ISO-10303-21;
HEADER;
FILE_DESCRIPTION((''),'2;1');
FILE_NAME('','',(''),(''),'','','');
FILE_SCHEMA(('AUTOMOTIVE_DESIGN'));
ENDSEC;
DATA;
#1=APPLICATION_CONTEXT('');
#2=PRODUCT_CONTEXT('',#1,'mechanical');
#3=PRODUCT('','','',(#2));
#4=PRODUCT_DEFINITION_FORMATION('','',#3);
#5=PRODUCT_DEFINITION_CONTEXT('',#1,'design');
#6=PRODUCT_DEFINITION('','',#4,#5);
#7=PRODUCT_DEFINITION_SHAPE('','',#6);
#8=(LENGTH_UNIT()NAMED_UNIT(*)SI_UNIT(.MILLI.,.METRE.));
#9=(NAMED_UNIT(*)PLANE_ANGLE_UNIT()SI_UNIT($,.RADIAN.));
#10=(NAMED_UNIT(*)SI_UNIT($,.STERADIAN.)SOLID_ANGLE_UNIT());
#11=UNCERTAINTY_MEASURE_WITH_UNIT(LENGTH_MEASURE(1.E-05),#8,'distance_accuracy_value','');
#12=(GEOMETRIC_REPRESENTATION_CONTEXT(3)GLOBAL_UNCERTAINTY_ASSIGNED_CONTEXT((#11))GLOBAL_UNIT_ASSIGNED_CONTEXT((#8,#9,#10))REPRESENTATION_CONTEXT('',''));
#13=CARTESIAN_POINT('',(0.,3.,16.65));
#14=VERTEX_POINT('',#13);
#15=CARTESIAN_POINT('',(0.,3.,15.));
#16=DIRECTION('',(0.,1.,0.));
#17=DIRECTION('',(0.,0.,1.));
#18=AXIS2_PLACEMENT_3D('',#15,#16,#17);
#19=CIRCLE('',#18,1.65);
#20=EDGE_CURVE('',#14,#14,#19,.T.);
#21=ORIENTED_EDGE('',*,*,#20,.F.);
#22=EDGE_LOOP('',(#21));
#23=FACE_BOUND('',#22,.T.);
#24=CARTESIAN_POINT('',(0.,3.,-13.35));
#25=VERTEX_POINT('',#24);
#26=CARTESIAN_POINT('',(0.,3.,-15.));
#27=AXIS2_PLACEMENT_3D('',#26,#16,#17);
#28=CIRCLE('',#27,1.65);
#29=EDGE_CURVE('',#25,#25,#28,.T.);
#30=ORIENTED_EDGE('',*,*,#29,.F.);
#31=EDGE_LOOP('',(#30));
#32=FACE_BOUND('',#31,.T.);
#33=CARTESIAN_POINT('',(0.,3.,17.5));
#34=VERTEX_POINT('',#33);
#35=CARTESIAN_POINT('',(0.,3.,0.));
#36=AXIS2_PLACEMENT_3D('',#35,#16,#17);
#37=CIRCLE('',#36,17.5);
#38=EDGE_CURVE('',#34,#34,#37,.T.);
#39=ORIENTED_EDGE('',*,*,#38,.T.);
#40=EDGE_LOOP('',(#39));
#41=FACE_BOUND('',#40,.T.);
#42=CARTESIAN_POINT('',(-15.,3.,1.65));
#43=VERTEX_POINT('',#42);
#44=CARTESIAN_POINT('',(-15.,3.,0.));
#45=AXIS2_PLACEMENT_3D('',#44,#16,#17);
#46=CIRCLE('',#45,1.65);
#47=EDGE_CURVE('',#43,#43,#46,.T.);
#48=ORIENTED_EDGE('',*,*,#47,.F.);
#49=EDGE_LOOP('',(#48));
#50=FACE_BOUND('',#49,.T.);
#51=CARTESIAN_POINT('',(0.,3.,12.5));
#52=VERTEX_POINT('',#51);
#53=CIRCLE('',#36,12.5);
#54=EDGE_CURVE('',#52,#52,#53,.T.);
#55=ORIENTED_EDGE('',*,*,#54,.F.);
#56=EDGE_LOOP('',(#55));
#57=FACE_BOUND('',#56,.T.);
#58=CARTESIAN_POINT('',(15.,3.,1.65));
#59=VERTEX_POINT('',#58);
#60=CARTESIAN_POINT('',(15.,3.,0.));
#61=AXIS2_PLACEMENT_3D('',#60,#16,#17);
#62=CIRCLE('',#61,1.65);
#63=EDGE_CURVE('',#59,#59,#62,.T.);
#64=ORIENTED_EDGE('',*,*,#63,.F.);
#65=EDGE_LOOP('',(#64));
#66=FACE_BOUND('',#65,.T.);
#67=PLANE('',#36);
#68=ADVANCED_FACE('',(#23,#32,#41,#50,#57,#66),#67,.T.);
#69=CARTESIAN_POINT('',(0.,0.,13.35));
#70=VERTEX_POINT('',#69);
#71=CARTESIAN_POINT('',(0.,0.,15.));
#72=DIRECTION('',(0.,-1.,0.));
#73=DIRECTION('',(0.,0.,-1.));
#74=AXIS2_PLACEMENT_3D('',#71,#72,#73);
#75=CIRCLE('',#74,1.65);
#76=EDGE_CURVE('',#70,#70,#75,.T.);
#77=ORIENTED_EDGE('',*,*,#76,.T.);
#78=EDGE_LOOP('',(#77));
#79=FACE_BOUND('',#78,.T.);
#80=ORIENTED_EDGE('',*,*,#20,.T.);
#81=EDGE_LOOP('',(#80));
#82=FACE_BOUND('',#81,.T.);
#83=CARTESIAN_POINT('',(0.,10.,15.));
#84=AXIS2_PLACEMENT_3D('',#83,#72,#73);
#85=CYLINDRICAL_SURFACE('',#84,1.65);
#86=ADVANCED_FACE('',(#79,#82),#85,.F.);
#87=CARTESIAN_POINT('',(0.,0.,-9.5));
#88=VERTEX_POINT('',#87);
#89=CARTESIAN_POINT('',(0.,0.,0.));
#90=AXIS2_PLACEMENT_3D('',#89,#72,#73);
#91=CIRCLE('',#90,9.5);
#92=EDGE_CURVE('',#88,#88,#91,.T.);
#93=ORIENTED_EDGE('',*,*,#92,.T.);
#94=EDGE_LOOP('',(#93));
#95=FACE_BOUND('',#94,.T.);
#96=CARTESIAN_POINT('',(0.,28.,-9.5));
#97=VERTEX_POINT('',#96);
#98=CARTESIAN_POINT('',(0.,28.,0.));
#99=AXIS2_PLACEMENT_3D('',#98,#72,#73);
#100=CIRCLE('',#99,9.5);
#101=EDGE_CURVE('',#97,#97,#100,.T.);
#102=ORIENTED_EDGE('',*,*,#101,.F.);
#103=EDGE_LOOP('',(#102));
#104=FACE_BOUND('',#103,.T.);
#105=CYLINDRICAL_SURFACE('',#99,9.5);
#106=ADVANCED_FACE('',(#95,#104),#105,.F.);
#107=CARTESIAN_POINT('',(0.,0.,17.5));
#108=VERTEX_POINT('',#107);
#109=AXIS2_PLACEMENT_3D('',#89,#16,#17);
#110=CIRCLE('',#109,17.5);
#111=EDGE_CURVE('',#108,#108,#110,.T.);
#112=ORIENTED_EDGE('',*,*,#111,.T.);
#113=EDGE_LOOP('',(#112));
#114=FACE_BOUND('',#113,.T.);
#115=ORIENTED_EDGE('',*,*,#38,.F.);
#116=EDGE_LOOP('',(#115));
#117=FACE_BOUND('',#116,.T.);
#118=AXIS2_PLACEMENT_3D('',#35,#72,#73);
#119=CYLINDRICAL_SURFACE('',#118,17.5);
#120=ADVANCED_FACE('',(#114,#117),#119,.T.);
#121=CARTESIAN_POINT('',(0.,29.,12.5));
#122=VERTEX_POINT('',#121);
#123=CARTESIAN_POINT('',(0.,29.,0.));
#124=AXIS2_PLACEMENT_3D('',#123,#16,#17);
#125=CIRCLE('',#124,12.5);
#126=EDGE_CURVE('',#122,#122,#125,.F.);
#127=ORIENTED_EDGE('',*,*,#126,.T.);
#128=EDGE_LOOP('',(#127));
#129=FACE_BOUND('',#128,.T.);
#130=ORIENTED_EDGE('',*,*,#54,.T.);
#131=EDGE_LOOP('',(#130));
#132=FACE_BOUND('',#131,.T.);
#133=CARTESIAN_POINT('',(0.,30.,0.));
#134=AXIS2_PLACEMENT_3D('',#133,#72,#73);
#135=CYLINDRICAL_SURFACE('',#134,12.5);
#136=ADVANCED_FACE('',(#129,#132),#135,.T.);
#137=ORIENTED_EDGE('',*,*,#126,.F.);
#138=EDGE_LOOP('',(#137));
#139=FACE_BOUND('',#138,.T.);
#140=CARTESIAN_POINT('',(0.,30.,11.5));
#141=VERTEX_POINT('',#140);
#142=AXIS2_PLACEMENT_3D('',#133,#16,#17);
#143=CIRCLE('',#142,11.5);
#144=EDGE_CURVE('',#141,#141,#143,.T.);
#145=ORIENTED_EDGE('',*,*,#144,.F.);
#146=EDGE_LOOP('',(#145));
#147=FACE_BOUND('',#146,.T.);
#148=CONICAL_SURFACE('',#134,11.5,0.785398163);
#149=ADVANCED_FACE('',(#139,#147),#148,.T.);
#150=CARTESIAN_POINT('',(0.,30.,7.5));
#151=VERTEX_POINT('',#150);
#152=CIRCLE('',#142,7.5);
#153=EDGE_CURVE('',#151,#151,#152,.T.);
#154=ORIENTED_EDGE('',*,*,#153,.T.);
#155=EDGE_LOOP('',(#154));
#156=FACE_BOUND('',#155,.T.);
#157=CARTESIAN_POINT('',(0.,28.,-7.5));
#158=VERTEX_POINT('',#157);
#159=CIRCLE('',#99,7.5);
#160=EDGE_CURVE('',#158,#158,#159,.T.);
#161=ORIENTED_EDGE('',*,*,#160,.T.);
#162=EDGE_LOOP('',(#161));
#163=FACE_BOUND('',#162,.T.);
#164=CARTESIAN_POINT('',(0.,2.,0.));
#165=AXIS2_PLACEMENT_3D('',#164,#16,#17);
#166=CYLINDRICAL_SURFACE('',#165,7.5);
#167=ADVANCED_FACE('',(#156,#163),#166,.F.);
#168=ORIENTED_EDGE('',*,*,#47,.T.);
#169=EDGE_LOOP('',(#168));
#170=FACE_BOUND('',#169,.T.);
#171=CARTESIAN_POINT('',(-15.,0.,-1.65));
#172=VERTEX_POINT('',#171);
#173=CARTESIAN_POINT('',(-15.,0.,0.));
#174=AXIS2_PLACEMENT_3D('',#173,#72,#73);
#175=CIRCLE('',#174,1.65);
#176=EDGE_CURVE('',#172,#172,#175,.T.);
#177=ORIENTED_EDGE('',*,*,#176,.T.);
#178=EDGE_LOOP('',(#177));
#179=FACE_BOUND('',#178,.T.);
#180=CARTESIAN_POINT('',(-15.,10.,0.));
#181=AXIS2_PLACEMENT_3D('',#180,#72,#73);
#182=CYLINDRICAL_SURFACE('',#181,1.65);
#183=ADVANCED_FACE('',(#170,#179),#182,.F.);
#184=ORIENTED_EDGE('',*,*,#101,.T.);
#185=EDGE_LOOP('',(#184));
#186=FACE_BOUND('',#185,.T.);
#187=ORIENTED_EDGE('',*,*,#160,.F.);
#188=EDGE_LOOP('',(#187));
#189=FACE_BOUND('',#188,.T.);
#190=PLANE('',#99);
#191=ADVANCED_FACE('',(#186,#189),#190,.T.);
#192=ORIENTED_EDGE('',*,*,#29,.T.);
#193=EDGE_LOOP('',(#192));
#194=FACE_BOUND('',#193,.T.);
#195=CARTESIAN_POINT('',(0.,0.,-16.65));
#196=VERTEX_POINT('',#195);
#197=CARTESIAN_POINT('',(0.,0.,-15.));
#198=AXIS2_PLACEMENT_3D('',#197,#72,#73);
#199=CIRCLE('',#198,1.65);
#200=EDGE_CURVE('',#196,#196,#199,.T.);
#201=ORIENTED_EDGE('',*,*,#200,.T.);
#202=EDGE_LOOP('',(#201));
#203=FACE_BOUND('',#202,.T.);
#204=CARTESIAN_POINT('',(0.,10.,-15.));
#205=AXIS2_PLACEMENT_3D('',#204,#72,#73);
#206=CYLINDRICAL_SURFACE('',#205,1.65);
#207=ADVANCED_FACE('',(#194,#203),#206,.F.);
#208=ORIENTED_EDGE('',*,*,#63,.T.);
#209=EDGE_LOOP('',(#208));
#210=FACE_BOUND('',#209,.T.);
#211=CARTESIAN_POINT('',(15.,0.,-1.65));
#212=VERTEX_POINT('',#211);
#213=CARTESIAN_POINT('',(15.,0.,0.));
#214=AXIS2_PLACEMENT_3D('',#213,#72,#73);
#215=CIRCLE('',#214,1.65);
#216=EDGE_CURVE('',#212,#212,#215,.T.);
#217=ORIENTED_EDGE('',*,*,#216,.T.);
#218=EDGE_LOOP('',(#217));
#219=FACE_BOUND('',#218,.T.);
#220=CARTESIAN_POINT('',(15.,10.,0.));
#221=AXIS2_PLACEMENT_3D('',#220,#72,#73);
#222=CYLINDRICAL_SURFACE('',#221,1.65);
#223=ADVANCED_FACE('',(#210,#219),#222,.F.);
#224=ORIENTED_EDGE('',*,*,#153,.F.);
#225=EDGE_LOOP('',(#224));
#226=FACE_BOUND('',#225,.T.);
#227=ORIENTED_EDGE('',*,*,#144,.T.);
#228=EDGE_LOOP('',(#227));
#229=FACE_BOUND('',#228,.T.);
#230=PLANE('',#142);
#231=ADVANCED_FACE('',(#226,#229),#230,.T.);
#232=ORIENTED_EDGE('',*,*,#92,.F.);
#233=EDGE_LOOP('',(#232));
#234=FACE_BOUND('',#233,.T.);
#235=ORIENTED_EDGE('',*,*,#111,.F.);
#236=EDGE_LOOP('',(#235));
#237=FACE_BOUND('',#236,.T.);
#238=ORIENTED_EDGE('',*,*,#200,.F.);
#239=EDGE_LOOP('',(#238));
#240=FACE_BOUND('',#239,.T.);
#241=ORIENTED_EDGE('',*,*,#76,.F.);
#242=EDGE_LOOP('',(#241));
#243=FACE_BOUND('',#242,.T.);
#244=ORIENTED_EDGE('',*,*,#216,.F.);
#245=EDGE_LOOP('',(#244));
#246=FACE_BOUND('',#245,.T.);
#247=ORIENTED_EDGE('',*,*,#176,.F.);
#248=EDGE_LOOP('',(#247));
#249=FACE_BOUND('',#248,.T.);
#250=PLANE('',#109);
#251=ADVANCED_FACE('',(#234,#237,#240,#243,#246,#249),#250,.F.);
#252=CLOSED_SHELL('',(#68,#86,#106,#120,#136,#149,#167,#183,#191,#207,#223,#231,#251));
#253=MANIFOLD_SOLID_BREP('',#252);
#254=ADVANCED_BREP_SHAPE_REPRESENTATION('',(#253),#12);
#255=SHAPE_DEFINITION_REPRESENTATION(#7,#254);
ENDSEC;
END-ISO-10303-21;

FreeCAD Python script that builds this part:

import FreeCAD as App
import Part
import Sketcher

V = App.Vector
Q = App.Units.Quantity


def edges_at(feature, points):
    """Names of the edges that pass closest to the given points."""
    edges = feature.Shape.Edges
    near = lambda p: min(range(len(edges)), key=lambda i: edges[i].distToShape(Part.Vertex(*p))[0])
    return sorted({f"Edge{near(p) + 1}" for p in points})

doc = App.newDocument("Part")
body = doc.addObject("PartDesign::Body", "Body")

sketch1 = body.newObject("Sketcher::SketchObject", "Sketch")
sketch1.AttachmentSupport = (doc.getObject("XZ_Plane"), [""])
sketch1.MapMode = "FlatFace"
sketch1.addGeometry(Part.Circle(V(0, 0, 0), V(0, 0, 1), 18), False)
sketch1.addConstraint([
    Sketcher.Constraint("Coincident", 0, 3, -1, 1),
    Sketcher.Constraint("Diameter", 0, Q("35 mm")),
])
pad1 = body.newObject("PartDesign::Pad", "Pad")
pad1.Profile = sketch1
pad1.Length = 3
pad1.Reversed = True

sketch2 = body.newObject("Sketcher::SketchObject", "Sketch001")
sketch2.AttachmentSupport = (doc.getObject("XZ_Plane"), [""])
sketch2.MapMode = "FlatFace"
sketch2.AttachmentOffset = App.Placement(V(0, 0, -3), App.Rotation())
sketch2.addGeometry(Part.Circle(V(0, 0, 0), V(0, 0, 1), 12), False)
sketch2.addConstraint([
    Sketcher.Constraint("Coincident", 0, 3, -1, 1),
    Sketcher.Constraint("Diameter", 0, Q("25 mm")),
])
pad2 = body.newObject("PartDesign::Pad", "Pad001")
pad2.Profile = sketch2
pad2.Length = 27
pad2.Reversed = True

sketch3 = body.newObject("Sketcher::SketchObject", "Sketch002")
sketch3.AttachmentSupport = (doc.getObject("XZ_Plane"), [""])
sketch3.MapMode = "FlatFace"
sketch3.addGeometry(Part.Circle(V(0, 0, 0), V(0, 0, 1), 10), False)
sketch3.addConstraint([
    Sketcher.Constraint("Coincident", 0, 3, -1, 1),
    Sketcher.Constraint("Diameter", 0, Q("19 mm")),
])
pocket1 = body.newObject("PartDesign::Pocket", "Pocket")
pocket1.Profile = sketch3
pocket1.Length = 28

sketch4 = body.newObject("Sketcher::SketchObject", "Sketch003")
sketch4.AttachmentSupport = (doc.getObject("XZ_Plane"), [""])
sketch4.MapMode = "FlatFace"
sketch4.AttachmentOffset = App.Placement(V(0, 0, -30), App.Rotation())
sketch4.addGeometry(Part.Circle(V(0, 0, 0), V(0, 0, 1), 8), False)
sketch4.addConstraint([
    Sketcher.Constraint("Coincident", 0, 3, -1, 1),
    Sketcher.Constraint("Diameter", 0, Q("15 mm")),
])
pocket2 = body.newObject("PartDesign::Pocket", "Pocket001")
pocket2.Profile = sketch4
pocket2.Length = 28
pocket2.Reversed = True
doc.recompute()

chamfer = body.newObject("PartDesign::Chamfer", "Chamfer")
chamfer.Base = (pocket2, edges_at(pocket2, [(0, 30, -12.5)]))
chamfer.Size = 1

sketch5 = body.newObject("Sketcher::SketchObject", "Sketch004")
sketch5.AttachmentSupport = (doc.getObject("XZ_Plane"), [""])
sketch5.MapMode = "FlatFace"
sketch5.addGeometry([
    Part.Circle(V(0, 15, 0), V(0, 0, 1), 1.6),
    Part.Circle(V(-15, 0, 0), V(0, 0, 1), 1.6),
    Part.Circle(V(0, -15, 0), V(0, 0, 1), 1.6),
    Part.Circle(V(15, 0, 0), V(0, 0, 1), 1.6),
], False)
sketch5.addConstraint([
    Sketcher.Constraint("Equal", 0, 1),
    Sketcher.Constraint("Equal", 1, 2),
    Sketcher.Constraint("Equal", 2, 3),
    Sketcher.Constraint("Symmetric", 0, 3, 2, 3, -1, 1),
    Sketcher.Constraint("Symmetric", 1, 3, 3, 3, -1, 1),
    Sketcher.Constraint("PointOnObject", 0, 3, -2),
    Sketcher.Constraint("PointOnObject", 1, 3, -1),
    Sketcher.Constraint("Diameter", 0, Q("3.3 mm")),
    Sketcher.Constraint("DistanceY", -1, 1, 0, 3, Q("15 mm")),
    Sketcher.Constraint("DistanceX", 1, 3, -1, 1, Q("15 mm")),
])
pocket3 = body.newObject("PartDesign::Pocket", "Pocket002")
pocket3.Profile = sketch5
pocket3.Length = 10

doc.recompute()
